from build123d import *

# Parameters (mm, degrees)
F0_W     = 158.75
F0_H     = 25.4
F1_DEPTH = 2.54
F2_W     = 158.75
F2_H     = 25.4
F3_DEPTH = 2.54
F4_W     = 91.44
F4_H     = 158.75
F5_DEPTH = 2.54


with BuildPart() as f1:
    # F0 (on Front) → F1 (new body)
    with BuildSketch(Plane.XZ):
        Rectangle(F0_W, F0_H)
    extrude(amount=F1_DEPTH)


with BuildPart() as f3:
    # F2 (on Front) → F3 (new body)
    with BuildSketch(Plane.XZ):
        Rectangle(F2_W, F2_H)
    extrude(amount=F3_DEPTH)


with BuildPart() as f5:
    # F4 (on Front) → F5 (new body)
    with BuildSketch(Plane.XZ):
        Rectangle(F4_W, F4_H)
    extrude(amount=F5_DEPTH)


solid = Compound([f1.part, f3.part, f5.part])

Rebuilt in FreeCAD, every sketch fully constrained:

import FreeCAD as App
import Part
import Sketcher

V = App.Vector
Q = App.Units.Quantity


def add_polygon(sketch, points):
    """Adds a closed chain of lines whose ends are joined by coincident constraints."""
    first, n = sketch.GeometryCount, len(points)
    for a, b in zip(points, points[1:] + points[:1]):
        sketch.addGeometry(Part.LineSegment(App.Vector(*a, 0), App.Vector(*b, 0)), False)
    for i in range(n):
        sketch.addConstraint(Sketcher.Constraint("Coincident", first + i, 2, first + (i + 1) % n, 1))

doc = App.newDocument("Part")
body = doc.addObject("PartDesign::Body", "Body")

# Sketch on XZ plane
sketch1 = body.newObject("Sketcher::SketchObject", "Sketch")
sketch1.AttachmentSupport = (doc.getObject("XZ_Plane"), [""])
sketch1.MapMode = "FlatFace"
add_polygon(sketch1, [(-79, 13), (-79, -13), (79, -13), (79, 13)])  # lines 0-3
sketch1.addConstraint(Sketcher.Constraint("Vertical", 0))
sketch1.addConstraint(Sketcher.Constraint("Horizontal", 1))
sketch1.addConstraint(Sketcher.Constraint("Vertical", 2))
sketch1.addConstraint(Sketcher.Constraint("Horizontal", 3))
sketch1.addConstraint(Sketcher.Constraint("Symmetric", 0, 2, 2, 2, -1, 1))
sketch1.addConstraint(Sketcher.Constraint("DistanceY", 0, 2, 0, 1, Q("1 in")))
sketch1.addConstraint(Sketcher.Constraint("DistanceX", 1, 1, 1, 2, Q("6.25 in")))
pad1 = body.newObject("PartDesign::Pad", "Pad")
pad1.Profile = sketch1
pad1.Length = Q("0.1 in")
body2 = doc.addObject("PartDesign::Body", "Body001")

# Sketch on XZ plane
sketch2 = body2.newObject("Sketcher::SketchObject", "Sketch001")
sketch2.AttachmentSupport = (doc.getObject("XZ_Plane001"), [""])
sketch2.MapMode = "FlatFace"
add_polygon(sketch2, [(-79, 13), (-79, -13), (79, -13), (79, 13)])  # lines 0-3
sketch2.addConstraint(Sketcher.Constraint("Vertical", 0))
sketch2.addConstraint(Sketcher.Constraint("Horizontal", 1))
sketch2.addConstraint(Sketcher.Constraint("Vertical", 2))
sketch2.addConstraint(Sketcher.Constraint("Horizontal", 3))
sketch2.addConstraint(Sketcher.Constraint("Symmetric", 0, 2, 2, 2, -1, 1))
sketch2.addConstraint(Sketcher.Constraint("DistanceY", 0, 2, 0, 1, Q("1 in")))
sketch2.addConstraint(Sketcher.Constraint("DistanceX", 1, 1, 1, 2, Q("6.25 in")))
pad2 = body2.newObject("PartDesign::Pad", "Pad001")
pad2.Profile = sketch2
pad2.Length = Q("0.1 in")
body3 = doc.addObject("PartDesign::Body", "Body002")

# Sketch on XZ plane
sketch3 = body3.newObject("Sketcher::SketchObject", "Sketch002")
sketch3.AttachmentSupport = (doc.getObject("XZ_Plane002"), [""])
sketch3.MapMode = "FlatFace"
add_polygon(sketch3, [(-46, 79), (-46, -79), (46, -79), (46, 79)])  # lines 0-3
sketch3.addConstraint(Sketcher.Constraint("Vertical", 0))
sketch3.addConstraint(Sketcher.Constraint("Horizontal", 1))
sketch3.addConstraint(Sketcher.Constraint("Vertical", 2))
sketch3.addConstraint(Sketcher.Constraint("Horizontal", 3))
sketch3.addConstraint(Sketcher.Constraint("Symmetric", 0, 2, 2, 2, -1, 1))
sketch3.addConstraint(Sketcher.Constraint("DistanceX", 1, 1, 1, 2, Q("3.6 in")))
sketch3.addConstraint(Sketcher.Constraint("DistanceY", 0, 2, 0, 1, Q("6.25 in")))
pad3 = body3.newObject("PartDesign::Pad", "Pad002")
pad3.Profile = sketch3
pad3.Length = Q("0.1 in")

doc.recompute()
